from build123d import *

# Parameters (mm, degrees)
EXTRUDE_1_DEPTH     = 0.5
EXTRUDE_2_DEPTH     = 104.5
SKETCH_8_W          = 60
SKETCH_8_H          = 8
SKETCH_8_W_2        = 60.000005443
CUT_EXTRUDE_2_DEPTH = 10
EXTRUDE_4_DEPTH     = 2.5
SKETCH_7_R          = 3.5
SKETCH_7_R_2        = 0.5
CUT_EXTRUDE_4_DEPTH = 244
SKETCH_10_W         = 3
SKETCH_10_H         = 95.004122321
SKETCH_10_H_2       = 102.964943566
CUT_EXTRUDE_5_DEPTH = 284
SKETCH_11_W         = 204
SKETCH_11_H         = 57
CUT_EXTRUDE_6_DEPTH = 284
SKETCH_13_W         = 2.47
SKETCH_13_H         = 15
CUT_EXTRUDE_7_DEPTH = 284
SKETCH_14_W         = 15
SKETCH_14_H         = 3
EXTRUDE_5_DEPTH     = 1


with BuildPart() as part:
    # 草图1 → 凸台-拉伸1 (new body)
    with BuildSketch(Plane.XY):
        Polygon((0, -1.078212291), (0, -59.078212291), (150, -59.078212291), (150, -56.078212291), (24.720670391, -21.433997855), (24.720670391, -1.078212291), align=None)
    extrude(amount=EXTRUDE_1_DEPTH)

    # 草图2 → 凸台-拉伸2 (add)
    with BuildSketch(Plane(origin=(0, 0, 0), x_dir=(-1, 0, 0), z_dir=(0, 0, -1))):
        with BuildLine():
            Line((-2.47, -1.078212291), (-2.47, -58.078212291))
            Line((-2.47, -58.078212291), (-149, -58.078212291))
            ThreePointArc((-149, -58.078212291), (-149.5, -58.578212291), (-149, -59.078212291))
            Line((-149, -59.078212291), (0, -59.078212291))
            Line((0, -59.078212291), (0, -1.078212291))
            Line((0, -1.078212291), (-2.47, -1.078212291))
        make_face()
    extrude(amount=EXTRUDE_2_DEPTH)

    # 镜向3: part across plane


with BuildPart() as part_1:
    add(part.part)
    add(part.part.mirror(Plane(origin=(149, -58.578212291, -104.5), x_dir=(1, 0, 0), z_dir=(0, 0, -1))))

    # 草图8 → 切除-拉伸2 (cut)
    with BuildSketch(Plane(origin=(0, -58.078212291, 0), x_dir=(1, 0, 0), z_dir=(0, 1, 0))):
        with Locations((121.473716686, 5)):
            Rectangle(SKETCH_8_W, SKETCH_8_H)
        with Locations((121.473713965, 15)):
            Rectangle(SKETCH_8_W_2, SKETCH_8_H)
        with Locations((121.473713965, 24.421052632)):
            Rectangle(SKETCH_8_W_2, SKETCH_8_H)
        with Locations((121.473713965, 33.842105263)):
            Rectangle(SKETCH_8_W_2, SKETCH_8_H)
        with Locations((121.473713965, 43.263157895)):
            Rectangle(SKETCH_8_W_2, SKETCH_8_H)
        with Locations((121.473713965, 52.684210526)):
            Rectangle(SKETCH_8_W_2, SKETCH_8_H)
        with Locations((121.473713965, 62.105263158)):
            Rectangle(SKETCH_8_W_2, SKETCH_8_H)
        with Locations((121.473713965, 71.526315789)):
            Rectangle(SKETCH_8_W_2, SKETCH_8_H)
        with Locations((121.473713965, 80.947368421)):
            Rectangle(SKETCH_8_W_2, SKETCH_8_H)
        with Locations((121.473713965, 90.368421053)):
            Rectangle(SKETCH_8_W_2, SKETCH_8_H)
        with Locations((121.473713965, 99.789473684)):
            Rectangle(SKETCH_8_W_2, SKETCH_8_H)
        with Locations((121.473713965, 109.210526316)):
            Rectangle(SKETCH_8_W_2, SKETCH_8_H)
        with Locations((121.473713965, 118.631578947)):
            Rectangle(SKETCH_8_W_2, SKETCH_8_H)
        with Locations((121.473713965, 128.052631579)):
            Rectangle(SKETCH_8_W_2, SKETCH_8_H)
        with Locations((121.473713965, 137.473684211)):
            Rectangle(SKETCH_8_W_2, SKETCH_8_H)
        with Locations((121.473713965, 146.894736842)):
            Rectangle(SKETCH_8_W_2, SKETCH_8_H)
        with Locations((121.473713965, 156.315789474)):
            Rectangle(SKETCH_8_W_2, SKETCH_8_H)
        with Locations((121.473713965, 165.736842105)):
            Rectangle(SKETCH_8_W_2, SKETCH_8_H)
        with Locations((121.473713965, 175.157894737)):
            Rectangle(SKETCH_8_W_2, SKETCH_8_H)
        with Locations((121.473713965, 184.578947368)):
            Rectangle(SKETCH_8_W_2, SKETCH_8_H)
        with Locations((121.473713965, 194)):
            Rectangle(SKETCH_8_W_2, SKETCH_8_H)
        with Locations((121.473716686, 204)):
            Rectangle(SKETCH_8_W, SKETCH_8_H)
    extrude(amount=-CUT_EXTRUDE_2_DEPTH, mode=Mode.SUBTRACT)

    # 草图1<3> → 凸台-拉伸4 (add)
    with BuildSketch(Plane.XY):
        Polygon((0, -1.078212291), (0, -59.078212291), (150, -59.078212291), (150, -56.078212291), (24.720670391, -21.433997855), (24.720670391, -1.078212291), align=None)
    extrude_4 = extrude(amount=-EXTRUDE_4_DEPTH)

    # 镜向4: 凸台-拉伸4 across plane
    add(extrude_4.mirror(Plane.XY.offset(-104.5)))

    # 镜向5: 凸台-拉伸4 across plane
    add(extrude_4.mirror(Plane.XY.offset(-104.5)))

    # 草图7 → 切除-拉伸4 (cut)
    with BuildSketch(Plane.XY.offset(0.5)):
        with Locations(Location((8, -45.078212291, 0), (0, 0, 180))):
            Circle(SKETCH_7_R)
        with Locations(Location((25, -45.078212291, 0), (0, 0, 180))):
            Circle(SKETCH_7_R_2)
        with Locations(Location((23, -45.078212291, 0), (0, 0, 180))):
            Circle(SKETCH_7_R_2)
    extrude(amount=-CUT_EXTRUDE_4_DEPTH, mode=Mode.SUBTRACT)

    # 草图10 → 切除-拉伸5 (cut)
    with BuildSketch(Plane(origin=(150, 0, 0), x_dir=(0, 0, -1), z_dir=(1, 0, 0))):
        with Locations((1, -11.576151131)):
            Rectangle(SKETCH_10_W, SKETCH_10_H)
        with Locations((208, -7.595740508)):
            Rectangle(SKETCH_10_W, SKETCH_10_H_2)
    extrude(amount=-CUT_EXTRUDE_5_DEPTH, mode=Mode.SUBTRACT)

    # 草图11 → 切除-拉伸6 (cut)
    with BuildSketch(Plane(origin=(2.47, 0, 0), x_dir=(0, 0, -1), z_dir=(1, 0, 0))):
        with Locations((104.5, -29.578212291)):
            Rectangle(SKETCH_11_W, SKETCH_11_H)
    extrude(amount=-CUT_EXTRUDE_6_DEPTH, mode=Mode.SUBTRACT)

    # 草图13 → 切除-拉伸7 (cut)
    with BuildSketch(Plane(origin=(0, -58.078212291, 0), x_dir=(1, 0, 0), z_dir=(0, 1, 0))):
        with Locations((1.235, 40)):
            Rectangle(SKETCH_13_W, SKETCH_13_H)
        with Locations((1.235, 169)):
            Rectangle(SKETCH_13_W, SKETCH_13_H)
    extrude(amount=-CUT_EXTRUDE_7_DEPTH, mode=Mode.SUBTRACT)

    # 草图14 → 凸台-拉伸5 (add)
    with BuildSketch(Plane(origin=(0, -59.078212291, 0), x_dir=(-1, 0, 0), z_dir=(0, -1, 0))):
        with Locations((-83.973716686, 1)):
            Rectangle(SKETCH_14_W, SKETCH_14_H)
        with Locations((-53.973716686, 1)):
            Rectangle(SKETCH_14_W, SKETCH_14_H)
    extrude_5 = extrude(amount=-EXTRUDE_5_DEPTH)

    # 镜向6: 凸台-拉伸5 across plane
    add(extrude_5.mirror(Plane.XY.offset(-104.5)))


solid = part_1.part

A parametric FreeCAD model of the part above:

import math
import FreeCAD as App
import Part
import Sketcher
from FreeCAD import Vector
Q = App.Units.Quantity

doc = App.newDocument("Part")
params = doc.addObject("Spreadsheet::Sheet", "Params")
for row, (alias, value) in enumerate([
    ("sketch1_width", "150 mm"),
    ("sketch1_height", "58 mm"),
    ("sketch1_height2", "3 mm"),
    ("pad1_length", "0.5 mm"),
    ("sketch2_radius", "0.5 mm"),
    ("sketch2_width", "149 mm"),
    ("sketch2_height", "57 mm"),
    ("sketch2_width2", "146.53 mm"),
    ("pad2_length", "104.5 mm"),
    ("sketch3_width", "60 mm"),
    ("sketch3_height", "8 mm"),
    ("pocket1_length", "10 mm"),
    ("sketch4_width", "150 mm"),
    ("sketch4_height", "58 mm"),
    ("sketch4_height2", "3 mm"),
    ("pad3_length", "2.5 mm"),
    ("sketch5_diameter", "7 mm"),
    ("sketch5_diameter2", "1 mm"),
    ("pocket2_length", "244 mm"),
    ("sketch6_height", "3 mm"),
    ("pocket3_length", "284 mm"),
    ("sketch7_width", "57 mm"),
    ("sketch7_height", "204 mm"),
    ("pocket4_length", "284 mm"),
    ("sketch8_height", "15 mm"),
    ("sketch8_width", "2.47 mm"),
    ("pocket5_length", "284 mm"),
    ("sketch9_width", "15 mm"),
    ("sketch9_height", "3 mm"),
    ("pad4_length", "1 mm"),
], start=1):
    params.set(f"A{row}", alias)
    params.set(f"B{row}", "=" + value)
    params.setAlias(f"B{row}", alias)

body = doc.addObject("PartDesign::Body", "Body")

# Sketch on XY plane
sketch1 = doc.addObject("Sketcher::SketchObject", "Sketch")
body.addObject(sketch1)
sketch1.AttachmentSupport = (doc.XY_Plane, [""])
sketch1.MapMode = "FlatFace"
sketch1.addGeometry([
    Part.LineSegment(Vector(0, -1.1, 0), Vector(0, -59.1, 0)),  # 0
    Part.LineSegment(Vector(0, -59.1, 0), Vector(150, -59.1, 0)),  # 1
    Part.LineSegment(Vector(150, -59.1, 0), Vector(150, -56.1, 0)),  # 2
    Part.LineSegment(Vector(150, -56.1, 0), Vector(24.7, -21.4, 0)),  # 3
    Part.LineSegment(Vector(24.7, -21.4, 0), Vector(24.7, -1.1, 0)),  # 4
    Part.LineSegment(Vector(24.7, -1.1, 0), Vector(0, -1.1, 0)),  # 5
], False)
sketch1.addConstraint([
    Sketcher.Constraint("Coincident", 0, 2, 1, 1),
    Sketcher.Constraint("Coincident", 1, 2, 2, 1),
    Sketcher.Constraint("Coincident", 2, 2, 3, 1),
    Sketcher.Constraint("Coincident", 3, 2, 4, 1),
    Sketcher.Constraint("Coincident", 4, 2, 5, 1),
    Sketcher.Constraint("Coincident", 5, 2, 0, 1),
    Sketcher.Constraint("Vertical", 0),
    Sketcher.Constraint("Horizontal", 1),
    Sketcher.Constraint("Vertical", 2),
    Sketcher.Constraint("Vertical", 4),
    Sketcher.Constraint("Horizontal", 5),
    Sketcher.Constraint("PointOnObject", 0, 2, -2),
    Sketcher.Constraint("DistanceX", 1, 1, 1, 2, Q("150 mm")),
    Sketcher.Constraint("DistanceY", 0, 2, 0, 1, Q("58 mm")),
    Sketcher.Constraint("DistanceY", 2, 1, 2, 2, Q("3 mm")),
    Sketcher.Constraint("DistanceX", 5, 2, 5, 1, Q("24.72067 mm")),
    Sketcher.Constraint("DistanceY", 4, 1, 4, 2, Q("20.355786 mm")),
    Sketcher.Constraint("DistanceY", 0, 2, -1, 1, Q("59.078212 mm")),
])
sketch1.setExpression("Constraints[12]", "Params.sketch1_width")
sketch1.setExpression("Constraints[13]", "Params.sketch1_height")
sketch1.setExpression("Constraints[14]", "Params.sketch1_height2")
pad1 = doc.addObject("PartDesign::Pad", "Pad")
body.addObject(pad1)
pad1.Profile = sketch1
pad1.setExpression("Length", "Params.pad1_length")

# Sketch on XY plane
sketch2 = doc.addObject("Sketcher::SketchObject", "Sketch001")
body.addObject(sketch2)
sketch2.AttachmentSupport = (doc.XY_Plane, [""])
sketch2.MapMode = "FlatFace"
sketch2.addGeometry([
    Part.LineSegment(Vector(2.5, -1.1, 0), Vector(2.5, -58.1, 0)),  # 0
    Part.LineSegment(Vector(2.5, -58.1, 0), Vector(149, -58.1, 0)),  # 1
    Part.ArcOfCircle(Part.Circle(Vector(149, -58.6, 0), Vector(0, 0, 1), 0.5), math.radians(-90), math.radians(90)),  # 2
    Part.LineSegment(Vector(149, -59.1, 0), Vector(0, -59.1, 0)),  # 3
    Part.LineSegment(Vector(0, -59.1, 0), Vector(0, -1.1, 0)),  # 4
    Part.LineSegment(Vector(0, -1.1, 0), Vector(2.5, -1.1, 0)),  # 5
], False)
sketch2.addConstraint([
    Sketcher.Constraint("Coincident", 0, 2, 1, 1),
    Sketcher.Constraint("Tangent", 1, 2, 2, 2),
    Sketcher.Constraint("Tangent", 2, 1, 3, 1),
    Sketcher.Constraint("Coincident", 3, 2, 4, 1),
    Sketcher.Constraint("Coincident", 4, 2, 5, 1),
    Sketcher.Constraint("Coincident", 5, 2, 0, 1),
    Sketcher.Constraint("Vertical", 0),
    Sketcher.Constraint("Horizontal", 1),
    Sketcher.Constraint("Horizontal", 3),
    Sketcher.Constraint("Vertical", 4),
    Sketcher.Constraint("Horizontal", 5),
    Sketcher.Constraint("PointOnObject", 3, 2, -2),
    Sketcher.Constraint("Radius", 2, Q("0.5 mm")),
    Sketcher.Constraint("DistanceX", 3, 2, 3, 1, Q("149 mm")),
    Sketcher.Constraint("DistanceY", 0, 2, 0, 1, Q("57 mm")),
    Sketcher.Constraint("DistanceX", 1, 1, 1, 2, Q("146.53 mm")),
    Sketcher.Constraint("DistanceY", 2, 3, -1, 1, Q("58.578212 mm")),
])
sketch2.setExpression("Constraints[12]", "Params.sketch2_radius")
sketch2.setExpression("Constraints[13]", "Params.sketch2_width")
sketch2.setExpression("Constraints[14]", "Params.sketch2_height")
sketch2.setExpression("Constraints[15]", "Params.sketch2_width2")
pad2 = doc.addObject("PartDesign::Pad", "Pad001")
body.addObject(pad2)
pad2.Profile = sketch2
pad2.setExpression("Length", "Params.pad2_length")
pad2.Reversed = True
body2 = doc.addObject("PartDesign::Body", "Body001")
doc.recompute()

body2.BaseFeature = body
doc.recompute()

mirroring = doc.addObject("Part::Mirroring", "Mirroring")
mirroring.Source = body
mirroring.Base = Vector(149, -58.578212, -104.5)
mirroring.Normal = Vector(0, 0, -1)
body3 = doc.addObject("PartDesign::Body", "Body002")
body3.BaseFeature = mirroring
boolean = doc.addObject("PartDesign::Boolean", "Boolean")
body2.addObject(boolean)
boolean.Type = "Fuse"
boolean.addObjects([body3])
doc.recompute()

# Sketch on XZ plane
sketch3 = doc.addObject("Sketcher::SketchObject", "Sketch002")
body2.addObject(sketch3)
sketch3.AttachmentSupport = (doc.getObject("XZ_Plane001"), [""])
sketch3.MapMode = "FlatFace"
sketch3.AttachmentOffset = App.Placement(Vector(0, 0, 58.078212), App.Rotation())
sketch3.addGeometry([
    Part.LineSegment(Vector(91, -9, 0), Vector(91, -1, 0)),  # 0
    Part.LineSegment(Vector(91, -1, 0), Vector(151, -1, 0)),  # 1
    Part.LineSegment(Vector(151, -1, 0), Vector(151, -9, 0)),  # 2
    Part.LineSegment(Vector(151, -9, 0), Vector(91, -9, 0)),  # 3
    Part.LineSegment(Vector(91, -19, 0), Vector(91, -11, 0)),  # 4
    Part.LineSegment(Vector(91, -11, 0), Vector(151, -11, 0)),  # 5
    Part.LineSegment(Vector(151, -11, 0), Vector(151, -19, 0)),  # 6
    Part.LineSegment(Vector(151, -19, 0), Vector(91, -19, 0)),  # 7
    Part.LineSegment(Vector(91, -28, 0), Vector(91, -20, 0)),  # 8
    Part.LineSegment(Vector(91, -20, 0), Vector(151, -20, 0)),  # 9
    Part.LineSegment(Vector(151, -20, 0), Vector(151, -28, 0)),  # 10
    Part.LineSegment(Vector(151, -28, 0), Vector(91, -28, 0)),  # 11
    Part.LineSegment(Vector(91, -38, 0), Vector(91, -30, 0)),  # 12
    Part.LineSegment(Vector(91, -30, 0), Vector(151, -30, 0)),  # 13
    Part.LineSegment(Vector(151, -30, 0), Vector(151, -38, 0)),  # 14
    Part.LineSegment(Vector(151, -38, 0), Vector(91, -38, 0)),  # 15
    Part.LineSegment(Vector(91, -47, 0), Vector(91, -39, 0)),  # 16
    Part.LineSegment(Vector(91, -39, 0), Vector(151, -39, 0)),  # 17
    Part.LineSegment(Vector(151, -39, 0), Vector(151, -47, 0)),  # 18
    Part.LineSegment(Vector(151, -47, 0), Vector(91, -47, 0)),  # 19
    Part.LineSegment(Vector(91, -57, 0), Vector(91, -49, 0)),  # 20
    Part.LineSegment(Vector(91, -49, 0), Vector(151, -49, 0)),  # 21
    Part.LineSegment(Vector(151, -49, 0), Vector(151, -57, 0)),  # 22
    Part.LineSegment(Vector(151, -57, 0), Vector(91, -57, 0)),  # 23
    Part.LineSegment(Vector(91, -66, 0), Vector(91, -58, 0)),  # 24
    Part.LineSegment(Vector(91, -58, 0), Vector(151, -58, 0)),  # 25
    Part.LineSegment(Vector(151, -58, 0), Vector(151, -66, 0)),  # 26
    Part.LineSegment(Vector(151, -66, 0), Vector(91, -66, 0)),  # 27
    Part.LineSegment(Vector(91, -76, 0), Vector(91, -68, 0)),  # 28
    Part.LineSegment(Vector(91, -68, 0), Vector(151, -68, 0)),  # 29
    Part.LineSegment(Vector(151, -68, 0), Vector(151, -76, 0)),  # 30
    Part.LineSegment(Vector(151, -76, 0), Vector(91, -76, 0)),  # 31
    Part.LineSegment(Vector(91, -85, 0), Vector(91, -77, 0)),  # 32
    Part.LineSegment(Vector(91, -77, 0), Vector(151, -77, 0)),  # 33
    Part.LineSegment(Vector(151, -77, 0), Vector(151, -85, 0)),  # 34
    Part.LineSegment(Vector(151, -85, 0), Vector(91, -85, 0)),  # 35
    Part.LineSegment(Vector(91, -94, 0), Vector(91, -86, 0)),  # 36
    Part.LineSegment(Vector(91, -86, 0), Vector(151, -86, 0)),  # 37
    Part.LineSegment(Vector(151, -86, 0), Vector(151, -94, 0)),  # 38
    Part.LineSegment(Vector(151, -94, 0), Vector(91, -94, 0)),  # 39
    Part.LineSegment(Vector(91, -104, 0), Vector(91, -96, 0)),  # 40
    Part.LineSegment(Vector(91, -96, 0), Vector(151, -96, 0)),  # 41
    Part.LineSegment(Vector(151, -96, 0), Vector(151, -104, 0)),  # 42
    Part.LineSegment(Vector(151, -104, 0), Vector(91, -104, 0)),  # 43
    Part.LineSegment(Vector(91, -113, 0), Vector(91, -105, 0)),  # 44
    Part.LineSegment(Vector(91, -105, 0), Vector(151, -105, 0)),  # 45
    Part.LineSegment(Vector(151, -105, 0), Vector(151, -113, 0)),  # 46
    Part.LineSegment(Vector(151, -113, 0), Vector(91, -113, 0)),  # 47
    Part.LineSegment(Vector(91, -123, 0), Vector(91, -115, 0)),  # 48
    Part.LineSegment(Vector(91, -115, 0), Vector(151, -115, 0)),  # 49
    Part.LineSegment(Vector(151, -115, 0), Vector(151, -123, 0)),  # 50
    Part.LineSegment(Vector(151, -123, 0), Vector(91, -123, 0)),  # 51
    Part.LineSegment(Vector(91, -132, 0), Vector(91, -124, 0)),  # 52
    Part.LineSegment(Vector(91, -124, 0), Vector(151, -124, 0)),  # 53
    Part.LineSegment(Vector(151, -124, 0), Vector(151, -132, 0)),  # 54
    Part.LineSegment(Vector(151, -132, 0), Vector(91, -132, 0)),  # 55
    Part.LineSegment(Vector(91, -141, 0), Vector(91, -133, 0)),  # 56
    Part.LineSegment(Vector(91, -133, 0), Vector(151, -133, 0)),  # 57
    Part.LineSegment(Vector(151, -133, 0), Vector(151, -141, 0)),  # 58
    Part.LineSegment(Vector(151, -141, 0), Vector(91, -141, 0)),  # 59
    Part.LineSegment(Vector(91, -151, 0), Vector(91, -143, 0)),  # 60
    Part.LineSegment(Vector(91, -143, 0), Vector(151, -143, 0)),  # 61
    Part.LineSegment(Vector(151, -143, 0), Vector(151, -151, 0)),  # 62
    Part.LineSegment(Vector(151, -151, 0), Vector(91, -151, 0)),  # 63
    Part.LineSegment(Vector(91, -160, 0), Vector(91, -152, 0)),  # 64
    Part.LineSegment(Vector(91, -152, 0), Vector(151, -152, 0)),  # 65
    Part.LineSegment(Vector(151, -152, 0), Vector(151, -160, 0)),  # 66
    Part.LineSegment(Vector(151, -160, 0), Vector(91, -160, 0)),  # 67
    Part.LineSegment(Vector(91, -170, 0), Vector(91, -162, 0)),  # 68
    Part.LineSegment(Vector(91, -162, 0), Vector(151, -162, 0)),  # 69
    Part.LineSegment(Vector(151, -162, 0), Vector(151, -170, 0)),  # 70
    Part.LineSegment(Vector(151, -170, 0), Vector(91, -170, 0)),  # 71
    Part.LineSegment(Vector(91, -179, 0), Vector(91, -171, 0)),  # 72
    Part.LineSegment(Vector(91, -171, 0), Vector(151, -171, 0)),  # 73
    Part.LineSegment(Vector(151, -171, 0), Vector(151, -179, 0)),  # 74
    Part.LineSegment(Vector(151, -179, 0), Vector(91, -179, 0)),  # 75
    Part.LineSegment(Vector(91, -189, 0), Vector(91, -181, 0)),  # 76
    Part.LineSegment(Vector(91, -181, 0), Vector(151, -181, 0)),  # 77
    Part.LineSegment(Vector(151, -181, 0), Vector(151, -189, 0)),  # 78
    Part.LineSegment(Vector(151, -189, 0), Vector(91, -189, 0)),  # 79
    Part.LineSegment(Vector(91, -198, 0), Vector(91, -190, 0)),  # 80
    Part.LineSegment(Vector(91, -190, 0), Vector(151, -190, 0)),  # 81
    Part.LineSegment(Vector(151, -190, 0), Vector(151, -198, 0)),  # 82
    Part.LineSegment(Vector(151, -198, 0), Vector(91, -198, 0)),  # 83
    Part.LineSegment(Vector(91, -208, 0), Vector(91, -200, 0)),  # 84
    Part.LineSegment(Vector(91, -200, 0), Vector(151, -200, 0)),  # 85
    Part.LineSegment(Vector(151, -200, 0), Vector(151, -208, 0)),  # 86
    Part.LineSegment(Vector(151, -208, 0), Vector(91, -208, 0)),  # 87
], False)
sketch3.addConstraint([
    Sketcher.Constraint("Coincident", 0, 2, 1, 1),
    Sketcher.Constraint("Coincident", 1, 2, 2, 1),
    Sketcher.Constraint("Coincident", 2, 2, 3, 1),
    Sketcher.Constraint("Coincident", 3, 2, 0, 1),
    Sketcher.Constraint("Coincident", 4, 2, 5, 1),
    Sketcher.Constraint("Coincident", 5, 2, 6, 1),
    Sketcher.Constraint("Coincident", 6, 2, 7, 1),
    Sketcher.Constraint("Coincident", 7, 2, 4, 1),
    Sketcher.Constraint("Coincident", 8, 2, 9, 1),
    Sketcher.Constraint("Coincident", 9, 2, 10, 1),
    Sketcher.Constraint("Coincident", 10, 2, 11, 1),
    Sketcher.Constraint("Coincident", 11, 2, 8, 1),
    Sketcher.Constraint("Coincident", 12, 2, 13, 1),
    Sketcher.Constraint("Coincident", 13, 2, 14, 1),
    Sketcher.Constraint("Coincident", 14, 2, 15, 1),
    Sketcher.Constraint("Coincident", 15, 2, 12, 1),
    Sketcher.Constraint("Coincident", 16, 2, 17, 1),
    Sketcher.Constraint("Coincident", 17, 2, 18, 1),
    Sketcher.Constraint("Coincident", 18, 2, 19, 1),
    Sketcher.Constraint("Coincident", 19, 2, 16, 1),
    Sketcher.Constraint("Coincident", 20, 2, 21, 1),
    Sketcher.Constraint("Coincident", 21, 2, 22, 1),
    Sketcher.Constraint("Coincident", 22, 2, 23, 1),
    Sketcher.Constraint("Coincident", 23, 2, 20, 1),
    Sketcher.Constraint("Coincident", 24, 2, 25, 1),
    Sketcher.Constraint("Coincident", 25, 2, 26, 1),
    Sketcher.Constraint("Coincident", 26, 2, 27, 1),
    Sketcher.Constraint("Coincident", 27, 2, 24, 1),
    Sketcher.Constraint("Coincident", 28, 2, 29, 1),
    Sketcher.Constraint("Coincident", 29, 2, 30, 1),
    Sketcher.Constraint("Coincident", 30, 2, 31, 1),
    Sketcher.Constraint("Coincident", 31, 2, 28, 1),
    Sketcher.Constraint("Coincident", 32, 2, 33, 1),
    Sketcher.Constraint("Coincident", 33, 2, 34, 1),
    Sketcher.Constraint("Coincident", 34, 2, 35, 1),
    Sketcher.Constraint("Coincident", 35, 2, 32, 1),
    Sketcher.Constraint("Coincident", 36, 2, 37, 1),
    Sketcher.Constraint("Coincident", 37, 2, 38, 1),
    Sketcher.Constraint("Coincident", 38, 2, 39, 1),
    Sketcher.Constraint("Coincident", 39, 2, 36, 1),
    Sketcher.Constraint("Coincident", 40, 2, 41, 1),
    Sketcher.Constraint("Coincident", 41, 2, 42, 1),
    Sketcher.Constraint("Coincident", 42, 2, 43, 1),
    Sketcher.Constraint("Coincident", 43, 2, 40, 1),
    Sketcher.Constraint("Coincident", 44, 2, 45, 1),
    Sketcher.Constraint("Coincident", 45, 2, 46, 1),
    Sketcher.Constraint("Coincident", 46, 2, 47, 1),
    Sketcher.Constraint("Coincident", 47, 2, 44, 1),
    Sketcher.Constraint("Coincident", 48, 2, 49, 1),
    Sketcher.Constraint("Coincident", 49, 2, 50, 1),
    Sketcher.Constraint("Coincident", 50, 2, 51, 1),
    Sketcher.Constraint("Coincident", 51, 2, 48, 1),
    Sketcher.Constraint("Coincident", 52, 2, 53, 1),
    Sketcher.Constraint("Coincident", 53, 2, 54, 1),
    Sketcher.Constraint("Coincident", 54, 2, 55, 1),
    Sketcher.Constraint("Coincident", 55, 2, 52, 1),
    Sketcher.Constraint("Coincident", 56, 2, 57, 1),
    Sketcher.Constraint("Coincident", 57, 2, 58, 1),
    Sketcher.Constraint("Coincident", 58, 2, 59, 1),
    Sketcher.Constraint("Coincident", 59, 2, 56, 1),
    Sketcher.Constraint("Coincident", 60, 2, 61, 1),
    Sketcher.Constraint("Coincident", 61, 2, 62, 1),
    Sketcher.Constraint("Coincident", 62, 2, 63, 1),
    Sketcher.Constraint("Coincident", 63, 2, 60, 1),
    Sketcher.Constraint("Coincident", 64, 2, 65, 1),
    Sketcher.Constraint("Coincident", 65, 2, 66, 1),
    Sketcher.Constraint("Coincident", 66, 2, 67, 1),
    Sketcher.Constraint("Coincident", 67, 2, 64, 1),
    Sketcher.Constraint("Coincident", 68, 2, 69, 1),
    Sketcher.Constraint("Coincident", 69, 2, 70, 1),
    Sketcher.Constraint("Coincident", 70, 2, 71, 1),
    Sketcher.Constraint("Coincident", 71, 2, 68, 1),
    Sketcher.Constraint("Coincident", 72, 2, 73, 1),
    Sketcher.Constraint("Coincident", 73, 2, 74, 1),
    Sketcher.Constraint("Coincident", 74, 2, 75, 1),
    Sketcher.Constraint("Coincident", 75, 2, 72, 1),
    Sketcher.Constraint("Coincident", 76, 2, 77, 1),
    Sketcher.Constraint("Coincident", 77, 2, 78, 1),
    Sketcher.Constraint("Coincident", 78, 2, 79, 1),
    Sketcher.Constraint("Coincident", 79, 2, 76, 1),
    Sketcher.Constraint("Coincident", 80, 2, 81, 1),
    Sketcher.Constraint("Coincident", 81, 2, 82, 1),
    Sketcher.Constraint("Coincident", 82, 2, 83, 1),
    Sketcher.Constraint("Coincident", 83, 2, 80, 1),
    Sketcher.Constraint("Coincident", 84, 2, 85, 1),
    Sketcher.Constraint("Coincident", 85, 2, 86, 1),
    Sketcher.Constraint("Coincident", 86, 2, 87, 1),
    Sketcher.Constraint("Coincident", 87, 2, 84, 1),
    Sketcher.Constraint("Vertical", 0),
    Sketcher.Constraint("Horizontal", 1),
    Sketcher.Constraint("Vertical", 2),
    Sketcher.Constraint("Horizontal", 3),
    Sketcher.Constraint("Vertical", 4),
    Sketcher.Constraint("Horizontal", 5),
    Sketcher.Constraint("Vertical", 6),
    Sketcher.Constraint("Horizontal", 7),
    Sketcher.Constraint("Vertical", 8),
    Sketcher.Constraint("Horizontal", 9),
    Sketcher.Constraint("Vertical", 10),
    Sketcher.Constraint("Horizontal", 11),
    Sketcher.Constraint("Vertical", 12),
    Sketcher.Constraint("Horizontal", 13),
    Sketcher.Constraint("Vertical", 14),
    Sketcher.Constraint("Horizontal", 15),
    Sketcher.Constraint("Vertical", 16),
    Sketcher.Constraint("Horizontal", 17),
    Sketcher.Constraint("Vertical", 18),
    Sketcher.Constraint("Horizontal", 19),
    Sketcher.Constraint("Vertical", 20),
    Sketcher.Constraint("Horizontal", 21),
    Sketcher.Constraint("Vertical", 22),
    Sketcher.Constraint("Horizontal", 23),
    Sketcher.Constraint("Vertical", 24),
    Sketcher.Constraint("Horizontal", 25),
    Sketcher.Constraint("Vertical", 26),
    Sketcher.Constraint("Horizontal", 27),
    Sketcher.Constraint("Vertical", 28),
    Sketcher.Constraint("Horizontal", 29),
    Sketcher.Constraint("Vertical", 30),
    Sketcher.Constraint("Horizontal", 31),
    Sketcher.Constraint("Vertical", 32),
    Sketcher.Constraint("Horizontal", 33),
    Sketcher.Constraint("Vertical", 34),
    Sketcher.Constraint("Horizontal", 35),
    Sketcher.Constraint("Vertical", 36),
    Sketcher.Constraint("Horizontal", 37),
    Sketcher.Constraint("Vertical", 38),
    Sketcher.Constraint("Horizontal", 39),
    Sketcher.Constraint("Vertical", 40),
    Sketcher.Constraint("Horizontal", 41),
    Sketcher.Constraint("Vertical", 42),
    Sketcher.Constraint("Horizontal", 43),
    Sketcher.Constraint("Vertical", 44),
    Sketcher.Constraint("Horizontal", 45),
    Sketcher.Constraint("Vertical", 46),
    Sketcher.Constraint("Horizontal", 47),
    Sketcher.Constraint("Vertical", 48),
    Sketcher.Constraint("Horizontal", 49),
    Sketcher.Constraint("Vertical", 50),
    Sketcher.Constraint("Horizontal", 51),
    Sketcher.Constraint("Vertical", 52),
    Sketcher.Constraint("Horizontal", 53),
    Sketcher.Constraint("Vertical", 54),
    Sketcher.Constraint("Horizontal", 55),
    Sketcher.Constraint("Vertical", 56),
    Sketcher.Constraint("Horizontal", 57),
    Sketcher.Constraint("Vertical", 58),
    Sketcher.Constraint("Horizontal", 59),
    Sketcher.Constraint("Vertical", 60),
    Sketcher.Constraint("Horizontal", 61),
    Sketcher.Constraint("Vertical", 62),
    Sketcher.Constraint("Horizontal", 63),
    Sketcher.Constraint("Vertical", 64),
    Sketcher.Constraint("Horizontal", 65),
    Sketcher.Constraint("Vertical", 66),
    Sketcher.Constraint("Horizontal", 67),
    Sketcher.Constraint("Vertical", 68),
    Sketcher.Constraint("Horizontal", 69),
    Sketcher.Constraint("Vertical", 70),
    Sketcher.Constraint("Horizontal", 71),
    Sketcher.Constraint("Vertical", 72),
    Sketcher.Constraint("Horizontal", 73),
    Sketcher.Constraint("Vertical", 74),
    Sketcher.Constraint("Horizontal", 75),
    Sketcher.Constraint("Vertical", 76),
    Sketcher.Constraint("Horizontal", 77),
    Sketcher.Constraint("Vertical", 78),
    Sketcher.Constraint("Horizontal", 79),
    Sketcher.Constraint("Vertical", 80),
    Sketcher.Constraint("Horizontal", 81),
    Sketcher.Constraint("Vertical", 82),
    Sketcher.Constraint("Horizontal", 83),
    Sketcher.Constraint("Vertical", 84),
    Sketcher.Constraint("Horizontal", 85),
    Sketcher.Constraint("Vertical", 86),
    Sketcher.Constraint("Horizontal", 87),
    Sketcher.Constraint("Vertical", 2, 2, 5, 2),
    Sketcher.Constraint("Vertical", 7, 2, 8, 2),
    Sketcher.Constraint("Vertical", 6, 2, 9, 2),
    Sketcher.Constraint("Vertical", 11, 2, 12, 2),
    Sketcher.Constraint("Vertical", 10, 2, 13, 2),
    Sketcher.Constraint("Vertical", 15, 2, 16, 2),
    Sketcher.Constraint("Vertical", 14, 2, 17, 2),
    Sketcher.Constraint("Vertical", 19, 2, 20, 2),
    Sketcher.Constraint("Vertical", 18, 2, 21, 2),
    Sketcher.Constraint("Vertical", 23, 2, 24, 2),
    Sketcher.Constraint("Vertical", 22, 2, 25, 2),
    Sketcher.Constraint("Vertical", 27, 2, 28, 2),
    Sketcher.Constraint("Vertical", 26, 2, 29, 2),
    Sketcher.Constraint("Vertical", 31, 2, 32, 2),
    Sketcher.Constraint("Vertical", 30, 2, 33, 2),
    Sketcher.Constraint("Vertical", 35, 2, 36, 2),
    Sketcher.Constraint("Vertical", 34, 2, 37, 2),
    Sketcher.Constraint("Vertical", 39, 2, 40, 2),
    Sketcher.Constraint("Vertical", 38, 2, 41, 2),
    Sketcher.Constraint("Vertical", 43, 2, 44, 2),
    Sketcher.Constraint("Vertical", 42, 2, 45, 2),
    Sketcher.Constraint("Vertical", 47, 2, 48, 2),
    Sketcher.Constraint("Vertical", 46, 2, 49, 2),
    Sketcher.Constraint("Vertical", 51, 2, 52, 2),
    Sketcher.Constraint("Vertical", 50, 2, 53, 2),
    Sketcher.Constraint("Vertical", 55, 2, 56, 2),
    Sketcher.Constraint("Vertical", 54, 2, 57, 2),
    Sketcher.Constraint("Vertical", 59, 2, 60, 2),
    Sketcher.Constraint("Vertical", 58, 2, 61, 2),
    Sketcher.Constraint("Vertical", 63, 2, 64, 2),
    Sketcher.Constraint("Vertical", 62, 2, 65, 2),
    Sketcher.Constraint("Vertical", 67, 2, 68, 2),
    Sketcher.Constraint("Vertical", 66, 2, 69, 2),
    Sketcher.Constraint("Vertical", 71, 2, 72, 2),
    Sketcher.Constraint("Vertical", 70, 2, 73, 2),
    Sketcher.Constraint("Vertical", 75, 2, 76, 2),
    Sketcher.Constraint("Vertical", 74, 2, 77, 2),
    Sketcher.Constraint("Vertical", 79, 2, 80, 2),
    Sketcher.Constraint("Vertical", 78, 2, 81, 2),
    Sketcher.Constraint("Vertical", 3, 2, 84, 2),
    Sketcher.Constraint("Vertical", 82, 2, 85, 2),
    Sketcher.Constraint("Equal", 2, 4),
    Sketcher.Constraint("Equal", 6, 8),
    Sketcher.Constraint("Equal", 10, 12),
    Sketcher.Constraint("Equal", 14, 16),
    Sketcher.Constraint("Equal", 18, 20),
    Sketcher.Constraint("Equal", 22, 24),
    Sketcher.Constraint("Equal", 26, 28),
    Sketcher.Constraint("Equal", 30, 32),
    Sketcher.Constraint("Equal", 34, 36),
    Sketcher.Constraint("Equal", 38, 40),
    Sketcher.Constraint("Equal", 42, 44),
    Sketcher.Constraint("Equal", 46, 48),
    Sketcher.Constraint("Equal", 50, 52),
    Sketcher.Constraint("Equal", 54, 56),
    Sketcher.Constraint("Equal", 58, 60),
    Sketcher.Constraint("Equal", 62, 64),
    Sketcher.Constraint("Equal", 66, 68),
    Sketcher.Constraint("Equal", 70, 72),
    Sketcher.Constraint("Equal", 74, 76),
    Sketcher.Constraint("Equal", 78, 80),
    Sketcher.Constraint("Equal", 82, 84),
    Sketcher.Constraint("DistanceX", 1, 1, 1, 2, Q("60 mm")),
    Sketcher.Constraint("DistanceY", 0, 1, 0, 2, Q("8 mm")),
    Sketcher.Constraint("DistanceY", 0, 2, -1, 1, Q("1 mm")),
    Sketcher.Constraint("DistanceY", 4, 2, -1, 1, Q("11 mm")),
    Sketcher.Constraint("DistanceY", 80, 2, -1, 1, Q("190 mm")),
    Sketcher.Constraint("DistanceY", 84, 2, -1, 1, Q("200 mm")),
    Sketcher.Constraint("DistanceX", 5, 1, 5, 2, Q("60.000005 mm")),
    Sketcher.Constraint("DistanceX", -1, 1, 4, 2, Q("91.473711 mm")),
    Sketcher.Constraint("DistanceY", 20, 2, -1, 1, Q("48.684211 mm")),
    Sketcher.Constraint("DistanceY", 32, 2, -1, 1, Q("76.947368 mm")),
    Sketcher.Constraint("DistanceY", 36, 2, -1, 1, Q("86.368421 mm")),
    Sketcher.Constraint("DistanceY", 48, 2, -1, 1, Q("114.631579 mm")),
    Sketcher.Constraint("DistanceY", 52, 2, -1, 1, Q("124.052632 mm")),
    Sketcher.Constraint("DistanceY", 64, 2, -1, 1, Q("152.315789 mm")),
    Sketcher.Constraint("DistanceY", 8, 2, -1, 1, Q("20.421053 mm")),
    Sketcher.Constraint("DistanceY", 12, 2, -1, 1, Q("29.842105 mm")),
    Sketcher.Constraint("DistanceY", 16, 2, -1, 1, Q("39.263158 mm")),
    Sketcher.Constraint("DistanceY", 24, 2, -1, 1, Q("58.105263 mm")),
    Sketcher.Constraint("DistanceY", 28, 2, -1, 1, Q("67.526316 mm")),
    Sketcher.Constraint("DistanceY", 40, 2, -1, 1, Q("95.789474 mm")),
    Sketcher.Constraint("DistanceY", 44, 2, -1, 1, Q("105.210526 mm")),
    Sketcher.Constraint("DistanceY", 56, 2, -1, 1, Q("133.473684 mm")),
    Sketcher.Constraint("DistanceY", 60, 2, -1, 1, Q("142.894737 mm")),
    Sketcher.Constraint("DistanceY", 68, 2, -1, 1, Q("161.736842 mm")),
    Sketcher.Constraint("DistanceY", 72, 2, -1, 1, Q("171.157895 mm")),
    Sketcher.Constraint("DistanceY", 76, 2, -1, 1, Q("180.578947 mm")),
])
sketch3.setExpression("Constraints[238]", "Params.sketch3_width")
sketch3.setExpression("Constraints[239]", "Params.sketch3_height")
pocket1 = doc.addObject("PartDesign::Pocket", "Pocket")
body2.addObject(pocket1)
pocket1.Profile = sketch3
pocket1.setExpression("Length", "Params.pocket1_length")
pocket1.Reversed = True

# Sketch on XY plane
sketch4 = doc.addObject("Sketcher::SketchObject", "Sketch003")
body2.addObject(sketch4)
sketch4.AttachmentSupport = (doc.getObject("XY_Plane001"), [""])
sketch4.MapMode = "FlatFace"
sketch4.addGeometry([
    Part.LineSegment(Vector(0, -1.1, 0), Vector(0, -59.1, 0)),  # 0
    Part.LineSegment(Vector(0, -59.1, 0), Vector(150, -59.1, 0)),  # 1
    Part.LineSegment(Vector(150, -59.1, 0), Vector(150, -56.1, 0)),  # 2
    Part.LineSegment(Vector(150, -56.1, 0), Vector(24.7, -21.4, 0)),  # 3
    Part.LineSegment(Vector(24.7, -21.4, 0), Vector(24.7, -1.1, 0)),  # 4
    Part.LineSegment(Vector(24.7, -1.1, 0), Vector(0, -1.1, 0)),  # 5
], False)
sketch4.addConstraint([
    Sketcher.Constraint("Coincident", 0, 2, 1, 1),
    Sketcher.Constraint("Coincident", 1, 2, 2, 1),
    Sketcher.Constraint("Coincident", 2, 2, 3, 1),
    Sketcher.Constraint("Coincident", 3, 2, 4, 1),
    Sketcher.Constraint("Coincident", 4, 2, 5, 1),
    Sketcher.Constraint("Coincident", 5, 2, 0, 1),
    Sketcher.Constraint("Vertical", 0),
    Sketcher.Constraint("Horizontal", 1),
    Sketcher.Constraint("Vertical", 2),
    Sketcher.Constraint("Vertical", 4),
    Sketcher.Constraint("Horizontal", 5),
    Sketcher.Constraint("PointOnObject", 0, 2, -2),
    Sketcher.Constraint("DistanceX", 1, 1, 1, 2, Q("150 mm")),
    Sketcher.Constraint("DistanceY", 0, 2, 0, 1, Q("58 mm")),
    Sketcher.Constraint("DistanceY", 2, 1, 2, 2, Q("3 mm")),
    Sketcher.Constraint("DistanceX", 5, 2, 5, 1, Q("24.72067 mm")),
    Sketcher.Constraint("DistanceY", 4, 1, 4, 2, Q("20.355786 mm")),
    Sketcher.Constraint("DistanceY", 0, 2, -1, 1, Q("59.078212 mm")),
])
sketch4.setExpression("Constraints[12]", "Params.sketch4_width")
sketch4.setExpression("Constraints[13]", "Params.sketch4_height")
sketch4.setExpression("Constraints[14]", "Params.sketch4_height2")
pad3 = doc.addObject("PartDesign::Pad", "Pad002")
body2.addObject(pad3)
pad3.Profile = sketch4
pad3.setExpression("Length", "Params.pad3_length")
pad3.Reversed = True
doc.recompute()

datumplane = doc.addObject("PartDesign::Plane", "DatumPlane")
body2.addObject(datumplane)
datumplane.AttachmentSupport = (doc.getObject("XY_Plane001"), [""])
datumplane.MapMode = "FlatFace"
datumplane.AttachmentOffset = App.Placement(Vector(0, 0, -104.5), App.Rotation())
mirrored = doc.addObject("PartDesign::Mirrored", "Mirrored")
body2.addObject(mirrored)
mirrored.Originals = [pad3]
mirrored.MirrorPlane = (datumplane, [""])
body2.Tip = mirrored
doc.recompute()

datumplane2 = doc.addObject("PartDesign::Plane", "DatumPlane001")
body2.addObject(datumplane2)
datumplane2.AttachmentSupport = (doc.getObject("XY_Plane001"), [""])
datumplane2.MapMode = "FlatFace"
datumplane2.AttachmentOffset = App.Placement(Vector(0, 0, -104.5), App.Rotation())
mirrored2 = doc.addObject("PartDesign::Mirrored", "Mirrored001")
body2.addObject(mirrored2)
mirrored2.Originals = [pad3]
mirrored2.MirrorPlane = (datumplane2, [""])
body2.Tip = mirrored2

# Sketch on XY plane
sketch5 = doc.addObject("Sketcher::SketchObject", "Sketch004")
body2.addObject(sketch5)
sketch5.AttachmentSupport = (doc.getObject("XY_Plane001"), [""])
sketch5.MapMode = "FlatFace"
sketch5.AttachmentOffset = App.Placement(Vector(0, 0, 0.5), App.Rotation())
sketch5.addGeometry([
    Part.Circle(Vector(8, -45.1, 0), Vector(0, 0, 1), 3.5),
    Part.Circle(Vector(25, -45.1, 0), Vector(0, 0, 1), 0.5),
    Part.Circle(Vector(23, -45.1, 0), Vector(0, 0, 1), 0.5),
], False)
sketch5.addConstraint([
    Sketcher.Constraint("Equal", 1, 2),
    Sketcher.Constraint("Horizontal", 0, 3, 1, 3),
    Sketcher.Constraint("Horizontal", 1, 3, 2, 3),
    Sketcher.Constraint("Diameter", 0, Q("7 mm")),
    Sketcher.Constraint("Diameter", 1, Q("1 mm")),
    Sketcher.Constraint("DistanceX", -1, 1, 0, 3, Q("8 mm")),
    Sketcher.Constraint("DistanceX", -1, 1, 1, 3, Q("25 mm")),
    Sketcher.Constraint("DistanceX", -1, 1, 2, 3, Q("23 mm")),
    Sketcher.Constraint("DistanceY", 0, 3, -1, 1, Q("45.078212 mm")),
])
sketch5.setExpression("Constraints[3]", "Params.sketch5_diameter")
sketch5.setExpression("Constraints[4]", "Params.sketch5_diameter2")
pocket2 = doc.addObject("PartDesign::Pocket", "Pocket001")
body2.addObject(pocket2)
pocket2.Profile = sketch5
pocket2.setExpression("Length", "Params.pocket2_length")

# Sketch on YZ plane
sketch6 = doc.addObject("Sketcher::SketchObject", "Sketch005")
body2.addObject(sketch6)
sketch6.AttachmentSupport = (doc.getObject("YZ_Plane001"), [""])
sketch6.MapMode = "FlatFace"
sketch6.AttachmentOffset = App.Placement(Vector(0, 0, 150), App.Rotation())
sketch6.addGeometry([
    Part.LineSegment(Vector(35.9, 0.5, 0), Vector(-59.1, 0.5, 0)),  # 0
    Part.LineSegment(Vector(-59.1, 0.5, 0), Vector(-59.1, -2.5, 0)),  # 1
    Part.LineSegment(Vector(-59.1, -2.5, 0), Vector(35.9, -2.5, 0)),  # 2
    Part.LineSegment(Vector(35.9, -2.5, 0), Vector(35.9, 0.5, 0)),  # 3
    Part.LineSegment(Vector(43.9, -206.5, 0), Vector(-59.1, -206.5, 0)),  # 4
    Part.LineSegment(Vector(-59.1, -206.5, 0), Vector(-59.1, -209.5, 0)),  # 5
    Part.LineSegment(Vector(-59.1, -209.5, 0), Vector(43.9, -209.5, 0)),  # 6
    Part.LineSegment(Vector(43.9, -209.5, 0), Vector(43.9, -206.5, 0)),  # 7
], False)
sketch6.addConstraint([
    Sketcher.Constraint("Coincident", 0, 2, 1, 1),
    Sketcher.Constraint("Coincident", 1, 2, 2, 1),
    Sketcher.Constraint("Coincident", 2, 2, 3, 1),
    Sketcher.Constraint("Coincident", 3, 2, 0, 1),
    Sketcher.Constraint("Coincident", 4, 2, 5, 1),
    Sketcher.Constraint("Coincident", 5, 2, 6, 1),
    Sketcher.Constraint("Coincident", 6, 2, 7, 1),
    Sketcher.Constraint("Coincident", 7, 2, 4, 1),
    Sketcher.Constraint("Horizontal", 0),
    Sketcher.Constraint("Vertical", 1),
    Sketcher.Constraint("Horizontal", 2),
    Sketcher.Constraint("Vertical", 3),
    Sketcher.Constraint("Horizontal", 4),
    Sketcher.Constraint("Vertical", 5),
    Sketcher.Constraint("Horizontal", 6),
    Sketcher.Constraint("Vertical", 7),
    Sketcher.Constraint("Vertical", 1, 2, 4, 2),
    Sketcher.Constraint("Equal", 3, 5),
    Sketcher.Constraint("DistanceY", 1, 2, 1, 1, Q("3 mm")),
    Sketcher.Constraint("DistanceY", 4, 2, 1, 2, Q("204 mm")),
    Sketcher.Constraint("DistanceY", -1, 1, 0, 2, Q("0.5 mm")),
    Sketcher.Constraint("DistanceX", 0, 2, 0, 1, Q("95.004122 mm")),
    Sketcher.Constraint("DistanceX", 4, 2, 4, 1, Q("102.964944 mm")),
    Sketcher.Constraint("DistanceX", -1, 1, 2, 2, Q("35.92591 mm")),
])
sketch6.setExpression("Constraints[18]", "Params.sketch6_height")
pocket3 = doc.addObject("PartDesign::Pocket", "Pocket002")
body2.addObject(pocket3)
pocket3.Profile = sketch6
pocket3.setExpression("Length", "Params.pocket3_length")

# Sketch on YZ plane
sketch7 = doc.addObject("Sketcher::SketchObject", "Sketch006")
body2.addObject(sketch7)
sketch7.AttachmentSupport = (doc.getObject("YZ_Plane001"), [""])
sketch7.MapMode = "FlatFace"
sketch7.AttachmentOffset = App.Placement(Vector(0, 0, 2.47), App.Rotation())
sketch7.addGeometry([
    Part.LineSegment(Vector(-1, -2, 0), Vector(-58, -2, 0)),
    Part.LineSegment(Vector(-58, -2, 0), Vector(-58, -206, 0)),
    Part.LineSegment(Vector(-58, -206, 0), Vector(-1, -206, 0)),
    Part.LineSegment(Vector(-1, -206, 0), Vector(-1, -2, 0)),
], False)
sketch7.addConstraint([
    Sketcher.Constraint("Coincident", 0, 2, 1, 1),
    Sketcher.Constraint("Coincident", 1, 2, 2, 1),
    Sketcher.Constraint("Coincident", 2, 2, 3, 1),
    Sketcher.Constraint("Coincident", 3, 2, 0, 1),
    Sketcher.Constraint("Horizontal", 0),
    Sketcher.Constraint("Vertical", 1),
    Sketcher.Constraint("Horizontal", 2),
    Sketcher.Constraint("Vertical", 3),
    Sketcher.Constraint("DistanceX", 0, 2, 0, 1, Q("57 mm")),
    Sketcher.Constraint("DistanceY", 1, 2, 1, 1, Q("204 mm")),
    Sketcher.Constraint("DistanceY", 0, 2, -1, 1, Q("2.5 mm")),
    Sketcher.Constraint("DistanceX", 0, 2, -1, 1, Q("58.078212 mm")),
])
sketch7.setExpression("Constraints[8]", "Params.sketch7_width")
sketch7.setExpression("Constraints[9]", "Params.sketch7_height")
pocket4 = doc.addObject("PartDesign::Pocket", "Pocket003")
body2.addObject(pocket4)
pocket4.Profile = sketch7
pocket4.setExpression("Length", "Params.pocket4_length")

# Sketch on XZ plane
sketch8 = doc.addObject("Sketcher::SketchObject", "Sketch007")
body2.addObject(sketch8)
sketch8.AttachmentSupport = (doc.getObject("XZ_Plane001"), [""])
sketch8.MapMode = "FlatFace"
sketch8.AttachmentOffset = App.Placement(Vector(0, 0, 58.078212), App.Rotation())
sketch8.addGeometry([
    Part.LineSegment(Vector(0, -47.5, 0), Vector(0, -32.5, 0)),  # 0
    Part.LineSegment(Vector(0, -32.5, 0), Vector(2.5, -32.5, 0)),  # 1
    Part.LineSegment(Vector(2.5, -32.5, 0), Vector(2.5, -47.5, 0)),  # 2
    Part.LineSegment(Vector(2.5, -47.5, 0), Vector(0, -47.5, 0)),  # 3
    Part.LineSegment(Vector(0, -176.5, 0), Vector(0, -161.5, 0)),  # 4
    Part.LineSegment(Vector(0, -161.5, 0), Vector(2.5, -161.5, 0)),  # 5
    Part.LineSegment(Vector(2.5, -161.5, 0), Vector(2.5, -176.5, 0)),  # 6
    Part.LineSegment(Vector(2.5, -176.5, 0), Vector(0, -176.5, 0)),  # 7
], False)
sketch8.addConstraint([
    Sketcher.Constraint("Coincident", 0, 2, 1, 1),
    Sketcher.Constraint("Coincident", 1, 2, 2, 1),
    Sketcher.Constraint("Coincident", 2, 2, 3, 1),
    Sketcher.Constraint("Coincident", 3, 2, 0, 1),
    Sketcher.Constraint("Coincident", 4, 2, 5, 1),
    Sketcher.Constraint("Coincident", 5, 2, 6, 1),
    Sketcher.Constraint("Coincident", 6, 2, 7, 1),
    Sketcher.Constraint("Coincident", 7, 2, 4, 1),
    Sketcher.Constraint("Vertical", 0),
    Sketcher.Constraint("Horizontal", 1),
    Sketcher.Constraint("Vertical", 2),
    Sketcher.Constraint("Horizontal", 3),
    Sketcher.Constraint("Vertical", 4),
    Sketcher.Constraint("Horizontal", 5),
    Sketcher.Constraint("Vertical", 6),
    Sketcher.Constraint("Horizontal", 7),
    Sketcher.Constraint("PointOnObject", 0, 2, -2),
    Sketcher.Constraint("PointOnObject", 4, 2, -2),
    Sketcher.Constraint("Vertical", 2, 2, 5, 2),
    Sketcher.Constraint("Equal", 2, 4),
    Sketcher.Constraint("DistanceY", 0, 1, 0, 2, Q("15 mm")),
    Sketcher.Constraint("DistanceY", 4, 2, 3, 2, Q("114 mm")),
    Sketcher.Constraint("DistanceX", 1, 1, 1, 2, Q("2.47 mm")),
    Sketcher.Constraint("DistanceY", 0, 2, -1, 1, Q("32.5 mm")),
])
sketch8.setExpression("Constraints[20]", "Params.sketch8_height")
sketch8.setExpression("Constraints[22]", "Params.sketch8_width")
pocket5 = doc.addObject("PartDesign::Pocket", "Pocket004")
body2.addObject(pocket5)
pocket5.Profile = sketch8
pocket5.setExpression("Length", "Params.pocket5_length")
pocket5.Reversed = True

# Sketch on XZ plane
sketch9 = doc.addObject("Sketcher::SketchObject", "Sketch008")
body2.addObject(sketch9)
sketch9.AttachmentSupport = (doc.getObject("XZ_Plane001"), [""])
sketch9.MapMode = "FlatFace"
sketch9.AttachmentOffset = App.Placement(Vector(0, 0, 59.078212), App.Rotation())
sketch9.addGeometry([
    Part.LineSegment(Vector(91.5, -2.5, 0), Vector(91.5, 0.5, 0)),  # 0
    Part.LineSegment(Vector(91.5, 0.5, 0), Vector(76.5, 0.5, 0)),  # 1
    Part.LineSegment(Vector(76.5, 0.5, 0), Vector(76.5, -2.5, 0)),  # 2
    Part.LineSegment(Vector(76.5, -2.5, 0), Vector(91.5, -2.5, 0)),  # 3
    Part.LineSegment(Vector(61.5, -2.5, 0), Vector(61.5, 0.5, 0)),  # 4
    Part.LineSegment(Vector(61.5, 0.5, 0), Vector(46.5, 0.5, 0)),  # 5
    Part.LineSegment(Vector(46.5, 0.5, 0), Vector(46.5, -2.5, 0)),  # 6
    Part.LineSegment(Vector(46.5, -2.5, 0), Vector(61.5, -2.5, 0)),  # 7
], False)
sketch9.addConstraint([
    Sketcher.Constraint("Coincident", 0, 2, 1, 1),
    Sketcher.Constraint("Coincident", 1, 2, 2, 1),
    Sketcher.Constraint("Coincident", 2, 2, 3, 1),
    Sketcher.Constraint("Coincident", 3, 2, 0, 1),
    Sketcher.Constraint("Coincident", 4, 2, 5, 1),
    Sketcher.Constraint("Coincident", 5, 2, 6, 1),
    Sketcher.Constraint("Coincident", 6, 2, 7, 1),
    Sketcher.Constraint("Coincident", 7, 2, 4, 1),
    Sketcher.Constraint("Vertical", 0),
    Sketcher.Constraint("Horizontal", 1),
    Sketcher.Constraint("Vertical", 2),
    Sketcher.Constraint("Horizontal", 3),
    Sketcher.Constraint("Vertical", 4),
    Sketcher.Constraint("Horizontal", 5),
    Sketcher.Constraint("Vertical", 6),
    Sketcher.Constraint("Horizontal", 7),
    Sketcher.Constraint("Horizontal", 1, 2, 4, 2),
    Sketcher.Constraint("Horizontal", 3, 2, 6, 2),
    Sketcher.Constraint("Equal", 3, 5),
    Sketcher.Constraint("DistanceX", 1, 2, 1, 1, Q("15 mm")),
    Sketcher.Constraint("DistanceY", 0, 1, 0, 2, Q("3 mm")),
    Sketcher.Constraint("DistanceX", 4, 2, 1, 2, Q("15 mm")),
    Sketcher.Constraint("DistanceY", -1, 1, 0, 2, Q("0.5 mm")),
    Sketcher.Constraint("DistanceX", -1, 1, 0, 2, Q("91.473717 mm")),
])
sketch9.setExpression("Constraints[19]", "Params.sketch9_width")
sketch9.setExpression("Constraints[20]", "Params.sketch9_height")
pad4 = doc.addObject("PartDesign::Pad", "Pad003")
body2.addObject(pad4)
pad4.Profile = sketch9
pad4.setExpression("Length", "Params.pad4_length")
pad4.Reversed = True
doc.recompute()

datumplane3 = doc.addObject("PartDesign::Plane", "DatumPlane002")
body2.addObject(datumplane3)
datumplane3.AttachmentSupport = (doc.getObject("XY_Plane001"), [""])
datumplane3.MapMode = "FlatFace"
datumplane3.AttachmentOffset = App.Placement(Vector(0, 0, -104.5), App.Rotation())
mirrored3 = doc.addObject("PartDesign::Mirrored", "Mirrored002")
body2.addObject(mirrored3)
mirrored3.Originals = [pad4]
mirrored3.MirrorPlane = (datumplane3, [""])
body2.Tip = mirrored3
mirroring.Visibility = False

doc.recompute()
